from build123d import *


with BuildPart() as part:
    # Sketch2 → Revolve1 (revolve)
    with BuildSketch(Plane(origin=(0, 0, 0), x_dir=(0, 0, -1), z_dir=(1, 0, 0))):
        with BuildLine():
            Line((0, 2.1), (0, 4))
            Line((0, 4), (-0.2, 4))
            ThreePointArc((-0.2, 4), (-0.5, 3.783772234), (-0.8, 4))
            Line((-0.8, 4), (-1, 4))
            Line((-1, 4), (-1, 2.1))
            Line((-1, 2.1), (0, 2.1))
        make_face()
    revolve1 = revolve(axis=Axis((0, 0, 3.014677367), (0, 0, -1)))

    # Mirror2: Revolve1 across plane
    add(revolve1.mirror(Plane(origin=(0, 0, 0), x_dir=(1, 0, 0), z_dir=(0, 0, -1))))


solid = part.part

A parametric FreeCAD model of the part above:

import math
import FreeCAD as App
import Part
import Sketcher

V = App.Vector

doc = App.newDocument("Part")
body = doc.addObject("PartDesign::Body", "Body")

# Sketch on YZ plane
sketch1 = body.newObject("Sketcher::SketchObject", "Sketch")
sketch1.AttachmentSupport = (doc.getObject("YZ_Plane"), [""])
sketch1.MapMode = "FlatFace"
sketch1.addGeometry([
    Part.LineSegment(V(2.1, 0, 0), V(4, 0, 0)),  # 0
    Part.LineSegment(V(4, 0, 0), V(4, 0.2, 0)),  # 1
    Part.ArcOfCircle(Part.Circle(V(4.1, 0.5, 0), V(0, 0, 1), 0.32), math.radians(108), math.radians(252)),  # 2
    Part.LineSegment(V(4, 0.8, 0), V(4, 1, 0)),  # 3
    Part.LineSegment(V(4, 1, 0), V(2.1, 1, 0)),  # 4
    Part.LineSegment(V(2.1, 1, 0), V(2.1, 0, 0)),  # 5
], False)
sketch1.addConstraint([
    Sketcher.Constraint("Coincident", 0, 2, 1, 1),
    Sketcher.Constraint("Coincident", 1, 2, 2, 2),
    Sketcher.Constraint("Coincident", 2, 1, 3, 1),
    Sketcher.Constraint("Coincident", 3, 2, 4, 1),
    Sketcher.Constraint("Coincident", 4, 2, 5, 1),
    Sketcher.Constraint("Coincident", 5, 2, 0, 1),
    Sketcher.Constraint("Horizontal", 0),
    Sketcher.Constraint("Vertical", 1),
    Sketcher.Constraint("Vertical", 3),
    Sketcher.Constraint("Horizontal", 4),
    Sketcher.Constraint("Vertical", 5),
    Sketcher.Constraint("PointOnObject", 0, 2, -1),
    Sketcher.Constraint("Vertical", 1, 2, 2, 1),
    Sketcher.Constraint("Equal", 1, 3),
    Sketcher.Constraint("DistanceY", 5, 2, 5, 1, 1.0),
    Sketcher.Constraint("DistanceX", 0, 1, 0, 2, 1.9),
    Sketcher.Constraint("DistanceY", 1, 1, 1, 2, 0.2),
    Sketcher.Constraint("DistanceX", -1, 1, 0, 2, 4.0),
    Sketcher.Constraint("DistanceX", 4, 2, 2, 3, 2.0),
])
revolution = body.newObject("PartDesign::Revolution", "Revolution")
revolution.Profile = sketch1
revolution.ReferenceAxis = (sketch1, ["V_Axis"])
revolution.Angle = 360
doc.recompute()

mirrored = body.newObject("PartDesign::Mirrored", "Mirrored")
mirrored.Originals = [revolution]
mirrored.MirrorPlane = (doc.getObject("XY_Plane"), [""])
body.Tip = mirrored

doc.recompute()
